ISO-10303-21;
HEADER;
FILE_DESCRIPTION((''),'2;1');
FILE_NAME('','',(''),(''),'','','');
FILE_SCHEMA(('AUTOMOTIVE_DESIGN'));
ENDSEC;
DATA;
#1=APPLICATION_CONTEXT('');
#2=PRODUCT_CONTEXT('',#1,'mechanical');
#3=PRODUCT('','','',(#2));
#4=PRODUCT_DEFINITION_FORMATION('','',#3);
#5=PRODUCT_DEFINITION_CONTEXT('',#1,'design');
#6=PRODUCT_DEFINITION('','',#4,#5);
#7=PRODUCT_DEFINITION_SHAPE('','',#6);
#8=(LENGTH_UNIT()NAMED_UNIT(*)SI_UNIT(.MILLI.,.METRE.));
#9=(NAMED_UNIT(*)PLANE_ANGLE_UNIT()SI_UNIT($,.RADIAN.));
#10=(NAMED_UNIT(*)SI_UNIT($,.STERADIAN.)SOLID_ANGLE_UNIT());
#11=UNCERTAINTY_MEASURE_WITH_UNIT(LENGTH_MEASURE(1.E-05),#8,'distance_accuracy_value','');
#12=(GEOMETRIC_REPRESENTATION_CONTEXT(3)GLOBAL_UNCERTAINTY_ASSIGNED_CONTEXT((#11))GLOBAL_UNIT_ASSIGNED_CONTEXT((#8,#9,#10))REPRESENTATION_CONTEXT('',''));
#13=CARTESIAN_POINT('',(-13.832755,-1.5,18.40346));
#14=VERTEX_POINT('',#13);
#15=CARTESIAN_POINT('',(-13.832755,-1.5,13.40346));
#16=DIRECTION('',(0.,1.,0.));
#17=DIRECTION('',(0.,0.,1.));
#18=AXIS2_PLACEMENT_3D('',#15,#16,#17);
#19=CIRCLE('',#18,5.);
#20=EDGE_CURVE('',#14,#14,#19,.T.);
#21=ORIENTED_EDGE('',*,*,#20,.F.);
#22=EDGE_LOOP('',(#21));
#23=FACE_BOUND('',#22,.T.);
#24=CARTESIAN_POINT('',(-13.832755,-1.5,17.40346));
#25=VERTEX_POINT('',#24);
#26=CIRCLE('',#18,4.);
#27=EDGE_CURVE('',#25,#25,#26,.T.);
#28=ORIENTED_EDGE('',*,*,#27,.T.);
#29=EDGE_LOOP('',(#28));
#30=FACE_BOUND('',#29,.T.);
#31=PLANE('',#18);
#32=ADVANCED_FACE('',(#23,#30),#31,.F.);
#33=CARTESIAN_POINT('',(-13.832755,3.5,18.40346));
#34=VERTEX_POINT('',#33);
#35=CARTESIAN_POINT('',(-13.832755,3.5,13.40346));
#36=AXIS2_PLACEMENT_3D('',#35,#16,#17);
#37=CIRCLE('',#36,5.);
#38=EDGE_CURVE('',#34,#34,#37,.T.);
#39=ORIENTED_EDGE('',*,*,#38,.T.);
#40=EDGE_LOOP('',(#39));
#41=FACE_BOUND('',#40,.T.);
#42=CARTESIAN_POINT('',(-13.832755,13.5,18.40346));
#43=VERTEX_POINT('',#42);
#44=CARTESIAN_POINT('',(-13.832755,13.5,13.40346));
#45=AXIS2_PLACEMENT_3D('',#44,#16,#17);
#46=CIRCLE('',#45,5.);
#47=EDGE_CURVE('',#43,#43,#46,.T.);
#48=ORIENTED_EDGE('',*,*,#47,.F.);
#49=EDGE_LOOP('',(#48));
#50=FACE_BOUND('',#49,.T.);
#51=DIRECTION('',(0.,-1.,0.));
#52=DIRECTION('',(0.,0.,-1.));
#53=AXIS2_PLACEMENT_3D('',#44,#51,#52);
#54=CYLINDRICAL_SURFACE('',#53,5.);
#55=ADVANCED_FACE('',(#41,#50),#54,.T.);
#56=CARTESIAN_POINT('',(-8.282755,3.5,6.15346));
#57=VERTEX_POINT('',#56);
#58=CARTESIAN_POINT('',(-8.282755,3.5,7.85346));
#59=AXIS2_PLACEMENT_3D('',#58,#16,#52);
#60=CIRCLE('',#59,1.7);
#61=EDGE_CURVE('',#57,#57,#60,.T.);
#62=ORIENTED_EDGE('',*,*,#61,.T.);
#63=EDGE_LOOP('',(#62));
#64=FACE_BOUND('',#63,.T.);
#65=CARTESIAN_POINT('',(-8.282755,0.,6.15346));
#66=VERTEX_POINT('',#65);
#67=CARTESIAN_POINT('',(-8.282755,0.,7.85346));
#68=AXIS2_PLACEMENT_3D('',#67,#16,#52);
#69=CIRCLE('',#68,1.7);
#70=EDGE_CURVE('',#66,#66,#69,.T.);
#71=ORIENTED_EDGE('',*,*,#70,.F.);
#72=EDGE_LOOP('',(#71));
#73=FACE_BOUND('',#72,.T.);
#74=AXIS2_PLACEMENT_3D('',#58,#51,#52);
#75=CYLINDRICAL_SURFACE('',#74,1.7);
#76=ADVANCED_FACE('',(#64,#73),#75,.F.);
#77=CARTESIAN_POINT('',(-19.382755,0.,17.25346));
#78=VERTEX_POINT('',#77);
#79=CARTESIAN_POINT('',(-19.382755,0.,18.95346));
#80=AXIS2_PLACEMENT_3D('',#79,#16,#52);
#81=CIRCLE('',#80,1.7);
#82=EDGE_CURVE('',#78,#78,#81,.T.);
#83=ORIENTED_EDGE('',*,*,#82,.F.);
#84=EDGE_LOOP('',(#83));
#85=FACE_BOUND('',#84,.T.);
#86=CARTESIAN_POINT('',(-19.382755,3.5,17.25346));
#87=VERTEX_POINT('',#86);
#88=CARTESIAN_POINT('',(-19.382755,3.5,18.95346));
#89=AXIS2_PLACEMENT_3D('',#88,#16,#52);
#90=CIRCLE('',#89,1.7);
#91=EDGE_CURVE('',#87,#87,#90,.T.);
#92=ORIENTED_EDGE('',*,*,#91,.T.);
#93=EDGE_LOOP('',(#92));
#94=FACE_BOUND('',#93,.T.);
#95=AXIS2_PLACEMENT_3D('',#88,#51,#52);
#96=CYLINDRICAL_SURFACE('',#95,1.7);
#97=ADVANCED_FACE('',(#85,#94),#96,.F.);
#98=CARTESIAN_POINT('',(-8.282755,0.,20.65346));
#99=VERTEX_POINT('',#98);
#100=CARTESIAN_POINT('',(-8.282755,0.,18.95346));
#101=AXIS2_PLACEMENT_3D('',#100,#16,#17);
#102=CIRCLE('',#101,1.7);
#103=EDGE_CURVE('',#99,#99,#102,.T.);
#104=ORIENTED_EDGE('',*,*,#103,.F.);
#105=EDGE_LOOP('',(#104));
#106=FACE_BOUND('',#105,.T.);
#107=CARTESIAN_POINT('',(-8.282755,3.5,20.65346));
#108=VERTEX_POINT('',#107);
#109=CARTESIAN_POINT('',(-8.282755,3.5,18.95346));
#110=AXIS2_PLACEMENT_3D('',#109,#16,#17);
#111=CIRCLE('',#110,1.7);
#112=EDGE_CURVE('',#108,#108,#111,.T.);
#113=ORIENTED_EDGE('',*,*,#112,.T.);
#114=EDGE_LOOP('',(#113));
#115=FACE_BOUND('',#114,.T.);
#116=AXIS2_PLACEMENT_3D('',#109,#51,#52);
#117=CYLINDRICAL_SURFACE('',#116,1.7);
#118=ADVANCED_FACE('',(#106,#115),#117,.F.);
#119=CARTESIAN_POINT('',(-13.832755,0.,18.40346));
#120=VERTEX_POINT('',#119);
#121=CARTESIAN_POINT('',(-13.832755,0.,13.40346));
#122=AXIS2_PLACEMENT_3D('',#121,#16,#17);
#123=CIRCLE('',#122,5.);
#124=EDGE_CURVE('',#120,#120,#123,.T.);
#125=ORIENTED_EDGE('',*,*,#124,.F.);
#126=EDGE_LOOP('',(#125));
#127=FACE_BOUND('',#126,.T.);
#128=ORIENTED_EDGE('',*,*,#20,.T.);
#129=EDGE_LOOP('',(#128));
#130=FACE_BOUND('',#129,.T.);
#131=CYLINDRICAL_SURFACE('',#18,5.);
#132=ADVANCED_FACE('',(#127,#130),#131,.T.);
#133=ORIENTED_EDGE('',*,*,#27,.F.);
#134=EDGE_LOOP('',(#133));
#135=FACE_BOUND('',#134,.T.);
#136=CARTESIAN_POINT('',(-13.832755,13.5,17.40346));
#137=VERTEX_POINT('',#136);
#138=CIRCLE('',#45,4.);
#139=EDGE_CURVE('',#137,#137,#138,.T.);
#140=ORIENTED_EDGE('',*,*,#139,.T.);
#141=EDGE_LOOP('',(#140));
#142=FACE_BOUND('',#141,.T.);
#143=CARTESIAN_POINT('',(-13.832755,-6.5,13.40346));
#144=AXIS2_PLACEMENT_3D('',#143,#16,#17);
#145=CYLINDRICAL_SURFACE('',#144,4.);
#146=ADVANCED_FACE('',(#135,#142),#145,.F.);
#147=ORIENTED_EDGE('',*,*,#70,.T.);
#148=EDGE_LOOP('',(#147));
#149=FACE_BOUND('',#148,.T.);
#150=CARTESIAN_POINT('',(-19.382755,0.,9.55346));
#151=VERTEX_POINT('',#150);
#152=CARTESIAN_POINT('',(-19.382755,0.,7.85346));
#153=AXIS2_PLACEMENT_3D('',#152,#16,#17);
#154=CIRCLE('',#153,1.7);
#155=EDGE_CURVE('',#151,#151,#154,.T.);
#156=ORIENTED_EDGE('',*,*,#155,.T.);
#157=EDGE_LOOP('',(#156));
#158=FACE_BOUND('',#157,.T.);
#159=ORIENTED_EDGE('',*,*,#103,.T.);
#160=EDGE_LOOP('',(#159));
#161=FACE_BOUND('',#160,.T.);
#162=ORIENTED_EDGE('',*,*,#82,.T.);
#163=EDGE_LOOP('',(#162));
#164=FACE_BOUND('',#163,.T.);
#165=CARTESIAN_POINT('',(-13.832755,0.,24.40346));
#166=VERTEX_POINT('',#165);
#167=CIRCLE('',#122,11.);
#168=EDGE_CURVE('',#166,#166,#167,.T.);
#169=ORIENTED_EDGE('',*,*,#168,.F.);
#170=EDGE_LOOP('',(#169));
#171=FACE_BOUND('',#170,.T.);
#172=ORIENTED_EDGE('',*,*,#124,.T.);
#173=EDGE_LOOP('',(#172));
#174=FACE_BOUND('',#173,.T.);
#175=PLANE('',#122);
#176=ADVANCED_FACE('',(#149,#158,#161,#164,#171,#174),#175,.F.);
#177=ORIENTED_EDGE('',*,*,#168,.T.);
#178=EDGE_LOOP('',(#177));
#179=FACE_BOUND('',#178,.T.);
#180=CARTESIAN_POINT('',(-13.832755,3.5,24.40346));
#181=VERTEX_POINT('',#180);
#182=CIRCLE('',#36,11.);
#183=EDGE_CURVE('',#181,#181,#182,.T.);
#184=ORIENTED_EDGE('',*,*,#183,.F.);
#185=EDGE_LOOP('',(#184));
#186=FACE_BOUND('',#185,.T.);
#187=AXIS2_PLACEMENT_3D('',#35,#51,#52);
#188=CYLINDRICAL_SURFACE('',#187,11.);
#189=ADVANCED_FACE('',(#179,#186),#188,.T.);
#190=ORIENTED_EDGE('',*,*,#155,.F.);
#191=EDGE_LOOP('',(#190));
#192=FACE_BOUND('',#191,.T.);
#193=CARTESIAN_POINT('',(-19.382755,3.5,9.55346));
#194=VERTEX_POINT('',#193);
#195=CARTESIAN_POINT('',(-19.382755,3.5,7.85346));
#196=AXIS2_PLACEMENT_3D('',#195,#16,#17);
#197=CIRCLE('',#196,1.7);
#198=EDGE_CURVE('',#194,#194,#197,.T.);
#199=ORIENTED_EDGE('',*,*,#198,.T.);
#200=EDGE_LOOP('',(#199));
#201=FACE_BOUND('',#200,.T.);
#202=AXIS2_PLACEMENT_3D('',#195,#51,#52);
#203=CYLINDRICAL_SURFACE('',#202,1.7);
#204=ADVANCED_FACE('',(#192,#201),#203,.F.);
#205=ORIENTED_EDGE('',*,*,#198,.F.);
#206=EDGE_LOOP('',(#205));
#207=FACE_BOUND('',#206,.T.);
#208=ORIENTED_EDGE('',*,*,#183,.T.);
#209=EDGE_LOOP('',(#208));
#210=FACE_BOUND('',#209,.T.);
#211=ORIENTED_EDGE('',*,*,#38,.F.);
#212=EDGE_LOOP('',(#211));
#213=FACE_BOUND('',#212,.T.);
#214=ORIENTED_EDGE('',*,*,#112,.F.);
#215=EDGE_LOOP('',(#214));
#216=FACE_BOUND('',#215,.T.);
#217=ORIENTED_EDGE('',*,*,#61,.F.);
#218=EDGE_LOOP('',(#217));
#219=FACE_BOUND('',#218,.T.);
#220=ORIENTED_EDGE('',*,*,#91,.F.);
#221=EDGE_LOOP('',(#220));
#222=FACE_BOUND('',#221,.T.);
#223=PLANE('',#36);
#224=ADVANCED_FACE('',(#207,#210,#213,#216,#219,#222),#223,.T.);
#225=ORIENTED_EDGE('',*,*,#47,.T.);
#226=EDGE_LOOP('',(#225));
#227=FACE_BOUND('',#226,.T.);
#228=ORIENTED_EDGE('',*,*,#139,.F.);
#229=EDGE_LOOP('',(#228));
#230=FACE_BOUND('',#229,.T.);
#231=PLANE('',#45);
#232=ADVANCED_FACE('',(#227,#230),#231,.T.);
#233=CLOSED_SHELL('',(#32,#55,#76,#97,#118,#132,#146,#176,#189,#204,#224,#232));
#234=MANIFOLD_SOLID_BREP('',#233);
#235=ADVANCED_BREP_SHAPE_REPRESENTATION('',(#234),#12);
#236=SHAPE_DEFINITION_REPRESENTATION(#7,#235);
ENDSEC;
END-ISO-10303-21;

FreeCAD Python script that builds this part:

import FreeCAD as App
import Part
import Sketcher

V = App.Vector
Q = App.Units.Quantity

doc = App.newDocument("Part")
body = doc.addObject("PartDesign::Body", "Body")

# Sketch on XZ plane
sketch1 = body.newObject("Sketcher::SketchObject", "Sketch")
sketch1.AttachmentSupport = (doc.getObject("XZ_Plane"), [""])
sketch1.MapMode = "FlatFace"
sketch1.addGeometry(Part.Circle(V(-13.8, 13.4, 0), V(0, 0, 1), 11), False)
sketch1.addGeometry(Part.Circle(V(-19.4, 19, 0), V(0, 0, 1), 1.7), False)
sketch1.addGeometry(Part.Circle(V(-8.3, 19, 0), V(0, 0, 1), 1.7), False)
sketch1.addGeometry(Part.Circle(V(-13.8, 13.4, 0), V(0, 0, 1), 4), False)
sketch1.addGeometry(Part.Circle(V(-19.4, 7.9, 0), V(0, 0, 1), 1.7), False)
sketch1.addGeometry(Part.Circle(V(-8.3, 7.9, 0), V(0, 0, 1), 1.7), False)
sketch1.addConstraint(Sketcher.Constraint("Coincident", 3, 3, 0, 3))
sketch1.addConstraint(Sketcher.Constraint("Equal", 1, 2))
sketch1.addConstraint(Sketcher.Constraint("Equal", 2, 4))
sketch1.addConstraint(Sketcher.Constraint("Equal", 4, 5))
sketch1.addConstraint(Sketcher.Constraint("Horizontal", 1, 3, 2, 3))
sketch1.addConstraint(Sketcher.Constraint("Horizontal", 4, 3, 5, 3))
sketch1.addConstraint(Sketcher.Constraint("Vertical", 1, 3, 4, 3))
sketch1.addConstraint(Sketcher.Constraint("Vertical", 2, 3, 5, 3))
sketch1.addConstraint(Sketcher.Constraint("Diameter", 0, Q("22 mm")))
sketch1.addConstraint(Sketcher.Constraint("Diameter", 3, Q("8 mm")))
sketch1.addConstraint(Sketcher.Constraint("Diameter", 1, Q("3.4 mm")))
sketch1.addConstraint(Sketcher.Constraint("DistanceX", 1, 3, 2, 3, Q("11.1 mm")))
sketch1.addConstraint(Sketcher.Constraint("DistanceY", 4, 3, 1, 3, Q("11.1 mm")))
sketch1.addConstraint(Sketcher.Constraint("DistanceX", 1, 3, 0, 3, Q("5.55 mm")))
sketch1.addConstraint(Sketcher.Constraint("DistanceY", 0, 3, 1, 3, Q("5.55 mm")))
sketch1.addConstraint(Sketcher.Constraint("DistanceY", -1, 1, 0, 3, Q("13.40346 mm")))
sketch1.addConstraint(Sketcher.Constraint("DistanceX", 0, 3, -1, 1, Q("13.832755 mm")))
pad1 = body.newObject("PartDesign::Pad", "Pad")
pad1.Profile = sketch1
pad1.Length = 3.5
pad1.Reversed = True

# Sketch on XZ plane
sketch2 = body.newObject("Sketcher::SketchObject", "Sketch001")
sketch2.AttachmentSupport = (doc.getObject("XZ_Plane"), [""])
sketch2.MapMode = "FlatFace"
sketch2.AttachmentOffset = App.Placement(V(0, 0, -3.5), App.Rotation())
sketch2.addGeometry(Part.Circle(V(-14, 13, 0), V(0, 0, 1), 5), False)
sketch2.addConstraint(Sketcher.Constraint("Diameter", 0, Q("10 mm")))
sketch2.addConstraint(Sketcher.Constraint("DistanceY", -1, 1, 0, 3, Q("13.40346 mm")))
sketch2.addConstraint(Sketcher.Constraint("DistanceX", 0, 3, -1, 1, Q("13.832755 mm")))
pad2 = body.newObject("PartDesign::Pad", "Pad001")
pad2.Profile = sketch2
pad2.Length = 10
pad2.Reversed = True

# Sketch on XZ plane
sketch3 = body.newObject("Sketcher::SketchObject", "Sketch002")
sketch3.AttachmentSupport = (doc.getObject("XZ_Plane"), [""])
sketch3.MapMode = "FlatFace"
sketch3.AttachmentOffset = App.Placement(V(0, 0, -3.5), App.Rotation())
sketch3.addGeometry(Part.Circle(V(-14, 13, 0), V(0, 0, 1), 5), False)
sketch3.addConstraint(Sketcher.Constraint("Diameter", 0, Q("10 mm")))
sketch3.addConstraint(Sketcher.Constraint("DistanceY", -1, 1, 0, 3, Q("13.40346 mm")))
sketch3.addConstraint(Sketcher.Constraint("DistanceX", 0, 3, -1, 1, Q("13.832755 mm")))
pad3 = body.newObject("PartDesign::Pad", "Pad002")
pad3.Profile = sketch3
pad3.Length = 5

# Sketch on XZ plane
sketch4 = body.newObject("Sketcher::SketchObject", "Sketch003")
sketch4.AttachmentSupport = (doc.getObject("XZ_Plane"), [""])
sketch4.MapMode = "FlatFace"
sketch4.AttachmentOffset = App.Placement(V(0, 0, -13.5), App.Rotation())
sketch4.addGeometry(Part.Circle(V(-13.8, 13.4, 0), V(0, 0, 1), 4), False)
sketch4.addConstraint(Sketcher.Constraint("Diameter", 0, Q("8 mm")))
sketch4.addConstraint(Sketcher.Constraint("DistanceY", -1, 1, 0, 3, Q("13.40346 mm")))
sketch4.addConstraint(Sketcher.Constraint("DistanceX", 0, 3, -1, 1, Q("13.832755 mm")))
pocket1 = body.newObject("PartDesign::Pocket", "Pocket")
pocket1.Profile = sketch4
pocket1.Length = 20
pocket1.Reversed = True

doc.recompute()
